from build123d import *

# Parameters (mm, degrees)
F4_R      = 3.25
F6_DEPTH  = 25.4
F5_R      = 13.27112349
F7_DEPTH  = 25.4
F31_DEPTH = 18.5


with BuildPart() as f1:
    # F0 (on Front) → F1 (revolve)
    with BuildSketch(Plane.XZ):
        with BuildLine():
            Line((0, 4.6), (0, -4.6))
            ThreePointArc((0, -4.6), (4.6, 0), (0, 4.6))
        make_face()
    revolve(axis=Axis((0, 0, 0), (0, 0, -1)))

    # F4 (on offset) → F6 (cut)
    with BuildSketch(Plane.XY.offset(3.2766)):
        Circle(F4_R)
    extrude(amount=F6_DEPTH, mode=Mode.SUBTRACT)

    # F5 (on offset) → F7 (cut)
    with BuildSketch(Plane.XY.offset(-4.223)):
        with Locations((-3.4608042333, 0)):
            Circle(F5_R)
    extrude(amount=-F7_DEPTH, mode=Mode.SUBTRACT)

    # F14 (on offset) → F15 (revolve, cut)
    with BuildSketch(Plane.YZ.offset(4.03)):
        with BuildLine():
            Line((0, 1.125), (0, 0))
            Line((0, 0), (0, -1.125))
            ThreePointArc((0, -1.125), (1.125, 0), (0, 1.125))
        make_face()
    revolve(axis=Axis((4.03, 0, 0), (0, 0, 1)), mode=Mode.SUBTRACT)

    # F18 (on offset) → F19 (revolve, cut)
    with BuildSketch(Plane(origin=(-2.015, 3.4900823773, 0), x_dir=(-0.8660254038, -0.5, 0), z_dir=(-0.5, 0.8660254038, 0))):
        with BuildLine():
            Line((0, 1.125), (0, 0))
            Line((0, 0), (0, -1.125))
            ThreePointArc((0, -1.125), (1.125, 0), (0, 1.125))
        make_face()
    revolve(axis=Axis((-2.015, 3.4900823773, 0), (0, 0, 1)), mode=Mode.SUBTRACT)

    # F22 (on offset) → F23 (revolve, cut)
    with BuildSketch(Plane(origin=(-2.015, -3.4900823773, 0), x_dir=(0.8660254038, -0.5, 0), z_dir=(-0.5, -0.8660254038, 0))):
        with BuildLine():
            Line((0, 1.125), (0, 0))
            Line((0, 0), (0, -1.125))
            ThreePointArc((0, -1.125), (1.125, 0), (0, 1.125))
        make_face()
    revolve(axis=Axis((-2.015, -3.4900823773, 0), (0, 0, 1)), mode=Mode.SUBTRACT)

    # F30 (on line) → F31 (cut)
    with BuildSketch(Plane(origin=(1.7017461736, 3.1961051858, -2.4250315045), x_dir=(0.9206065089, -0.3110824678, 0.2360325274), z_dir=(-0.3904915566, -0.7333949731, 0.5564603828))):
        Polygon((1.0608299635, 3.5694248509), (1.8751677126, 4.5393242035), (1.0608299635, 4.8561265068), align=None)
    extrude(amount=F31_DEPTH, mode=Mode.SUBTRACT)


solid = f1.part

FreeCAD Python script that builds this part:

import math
import FreeCAD as App
import Part
import Sketcher
from FreeCAD import Vector
Q = App.Units.Quantity


def add_polygon(sketch, points):
    """Adds a closed chain of lines whose ends are joined by coincident constraints."""
    first, n = sketch.GeometryCount, len(points)
    for a, b in zip(points, points[1:] + points[:1]):
        sketch.addGeometry(Part.LineSegment(App.Vector(*a, 0), App.Vector(*b, 0)), False)
    for i in range(n):
        sketch.addConstraint(Sketcher.Constraint("Coincident", first + i, 2, first + (i + 1) % n, 1))

doc = App.newDocument("Part")
body = doc.addObject("PartDesign::Body", "Body")

sketch1 = body.newObject("Sketcher::SketchObject", "Sketch")
sketch1.AttachmentSupport = (doc.getObject("XZ_Plane"), [""])
sketch1.MapMode = "FlatFace"
sketch1.addGeometry([
    Part.LineSegment(Vector(0, 4.6, 0), Vector(0, -4.6, 0)),
    Part.ArcOfCircle(Part.Circle(Vector(0, 0, 0), Vector(0, 0, 1), 4.6), math.radians(-90), math.radians(90)),
], False)
sketch1.addConstraint([
    Sketcher.Constraint("Coincident", 0, 1, 1, 2),
    Sketcher.Constraint("Coincident", 1, 1, 0, 2),
    Sketcher.Constraint("Vertical", 0),
    Sketcher.Constraint("Coincident", 1, 3, -1, 1),
    Sketcher.Constraint("PointOnObject", 0, 1, -2),
    Sketcher.Constraint("Radius", 1, Q("4.6 mm")),
])
revolution = body.newObject("PartDesign::Revolution", "Revolution")
revolution.Profile = sketch1
revolution.ReferenceAxis = (sketch1, ["V_Axis"])
revolution.Angle = 360

sketch2 = body.newObject("Sketcher::SketchObject", "Sketch001")
sketch2.AttachmentSupport = (doc.getObject("XY_Plane"), [""])
sketch2.MapMode = "FlatFace"
sketch2.AttachmentOffset = App.Placement(Vector(0, 0, 3.2766), App.Rotation())
sketch2.addGeometry(Part.Circle(Vector(0, 0, 0), Vector(0, 0, 1), 3.2), False)
sketch2.addConstraint([
    Sketcher.Constraint("Coincident", 0, 3, -1, 1),
    Sketcher.Constraint("Diameter", 0, Q("6.5 mm")),
])
pocket1 = body.newObject("PartDesign::Pocket", "Pocket")
pocket1.Profile = sketch2
pocket1.Length = 25.4
pocket1.Reversed = True

sketch3 = body.newObject("Sketcher::SketchObject", "Sketch002")
sketch3.AttachmentSupport = (doc.getObject("XY_Plane"), [""])
sketch3.MapMode = "FlatFace"
sketch3.AttachmentOffset = App.Placement(Vector(0, 0, -4.223), App.Rotation())
sketch3.addGeometry(Part.Circle(Vector(-3, 0, 0), Vector(0, 0, 1), 13), False)
sketch3.addConstraint([
    Sketcher.Constraint("PointOnObject", 0, 3, -1),
    Sketcher.Constraint("Diameter", 0, Q("26.542247 mm")),
    Sketcher.Constraint("DistanceX", 0, 3, -1, 1, Q("3.460804 mm")),
])
pocket2 = body.newObject("PartDesign::Pocket", "Pocket001")
pocket2.Profile = sketch3
pocket2.Length = 25.4

sketch4 = body.newObject("Sketcher::SketchObject", "Sketch003")
sketch4.AttachmentSupport = (doc.getObject("YZ_Plane"), [""])
sketch4.MapMode = "FlatFace"
sketch4.AttachmentOffset = App.Placement(Vector(0, 0, 4.03), App.Rotation())
sketch4.addGeometry([
    Part.LineSegment(Vector(0, 1.1, 0), Vector(0, -1.1, 0)),
    Part.ArcOfCircle(Part.Circle(Vector(0, 0, 0), Vector(0, 0, 1), 1.1), math.radians(-90), math.radians(90)),
], False)
sketch4.addConstraint([
    Sketcher.Constraint("Coincident", 0, 1, 1, 2),
    Sketcher.Constraint("Coincident", 1, 1, 0, 2),
    Sketcher.Constraint("Vertical", 0),
    Sketcher.Constraint("Coincident", 1, 3, -1, 1),
    Sketcher.Constraint("PointOnObject", 0, 1, -2),
    Sketcher.Constraint("Radius", 1, Q("1.125 mm")),
])
groove = body.newObject("PartDesign::Groove", "Groove")
groove.Profile = sketch4
groove.ReferenceAxis = (sketch4, ["V_Axis"])
groove.Angle = 360

sketch5 = body.newObject("Sketcher::SketchObject", "Sketch004")
sketch5.Placement = App.Placement(Vector(-2.015, 3.490082, 0), App.Rotation(Vector(-0.866025404, -0.5, 0), Vector(0, 0, 1), Vector(-0.5, 0.866025404, 0), "ZXY"))
sketch5.addGeometry([
    Part.LineSegment(Vector(0, 1.1, 0), Vector(0, -1.1, 0)),
    Part.ArcOfCircle(Part.Circle(Vector(0, 0, 0), Vector(0, 0, 1), 1.1), math.radians(-90), math.radians(90)),
], False)
sketch5.addConstraint([
    Sketcher.Constraint("Coincident", 0, 1, 1, 2),
    Sketcher.Constraint("Coincident", 1, 1, 0, 2),
    Sketcher.Constraint("Vertical", 0),
    Sketcher.Constraint("Coincident", 1, 3, -1, 1),
    Sketcher.Constraint("PointOnObject", 0, 1, -2),
    Sketcher.Constraint("Radius", 1, Q("1.125 mm")),
])
groove2 = body.newObject("PartDesign::Groove", "Groove001")
groove2.Profile = sketch5
groove2.ReferenceAxis = (sketch5, ["V_Axis"])
groove2.Angle = 360

sketch6 = body.newObject("Sketcher::SketchObject", "Sketch005")
sketch6.Placement = App.Placement(Vector(-2.015, -3.490082, 0), App.Rotation(Vector(0.866025404, -0.5, 0), Vector(0, 0, 1), Vector(-0.5, -0.866025404, 0), "ZXY"))
sketch6.addGeometry([
    Part.LineSegment(Vector(0, 1.1, 0), Vector(0, -1.1, 0)),
    Part.ArcOfCircle(Part.Circle(Vector(0, 0, 0), Vector(0, 0, 1), 1.1), math.radians(-90), math.radians(90)),
], False)
sketch6.addConstraint([
    Sketcher.Constraint("Coincident", 0, 1, 1, 2),
    Sketcher.Constraint("Coincident", 1, 1, 0, 2),
    Sketcher.Constraint("Vertical", 0),
    Sketcher.Constraint("Coincident", 1, 3, -1, 1),
    Sketcher.Constraint("PointOnObject", 0, 1, -2),
    Sketcher.Constraint("Radius", 1, Q("1.125 mm")),
])
groove3 = body.newObject("PartDesign::Groove", "Groove002")
groove3.Profile = sketch6
groove3.ReferenceAxis = (sketch6, ["V_Axis"])
groove3.Angle = 360

sketch7 = body.newObject("Sketcher::SketchObject", "Sketch006")
sketch7.Placement = App.Placement(Vector(1.701746, 3.196105, -2.425032), App.Rotation(Vector(0.920606509, -0.311082468, 0.236032527), Vector(0.000000001, 0.60444976, 0.796643263), Vector(-0.390491557, -0.733394973, 0.556460383), "ZXY"))
add_polygon(sketch7, [(1.1, 3.6), (1.9, 4.5), (1.1, 4.9)])
sketch7.addConstraint([
    Sketcher.Constraint("Vertical", 2),
    Sketcher.Constraint("DistanceY", 2, 2, 2, 1, Q("1.286702 mm")),
    Sketcher.Constraint("DistanceY", 2, 2, 0, 2, Q("0.969899 mm")),
    Sketcher.Constraint("Distance", 1, Q("0.87379 mm")),
    Sketcher.Constraint("DistanceX", -1, 1, 1, 2, Q("1.06083 mm")),
    Sketcher.Constraint("DistanceY", -1, 1, 0, 2, Q("4.539324 mm")),
])
pocket3 = body.newObject("PartDesign::Pocket", "Pocket002")
pocket3.Profile = sketch7
pocket3.Length = 18.5
pocket3.Reversed = True

doc.recompute()
